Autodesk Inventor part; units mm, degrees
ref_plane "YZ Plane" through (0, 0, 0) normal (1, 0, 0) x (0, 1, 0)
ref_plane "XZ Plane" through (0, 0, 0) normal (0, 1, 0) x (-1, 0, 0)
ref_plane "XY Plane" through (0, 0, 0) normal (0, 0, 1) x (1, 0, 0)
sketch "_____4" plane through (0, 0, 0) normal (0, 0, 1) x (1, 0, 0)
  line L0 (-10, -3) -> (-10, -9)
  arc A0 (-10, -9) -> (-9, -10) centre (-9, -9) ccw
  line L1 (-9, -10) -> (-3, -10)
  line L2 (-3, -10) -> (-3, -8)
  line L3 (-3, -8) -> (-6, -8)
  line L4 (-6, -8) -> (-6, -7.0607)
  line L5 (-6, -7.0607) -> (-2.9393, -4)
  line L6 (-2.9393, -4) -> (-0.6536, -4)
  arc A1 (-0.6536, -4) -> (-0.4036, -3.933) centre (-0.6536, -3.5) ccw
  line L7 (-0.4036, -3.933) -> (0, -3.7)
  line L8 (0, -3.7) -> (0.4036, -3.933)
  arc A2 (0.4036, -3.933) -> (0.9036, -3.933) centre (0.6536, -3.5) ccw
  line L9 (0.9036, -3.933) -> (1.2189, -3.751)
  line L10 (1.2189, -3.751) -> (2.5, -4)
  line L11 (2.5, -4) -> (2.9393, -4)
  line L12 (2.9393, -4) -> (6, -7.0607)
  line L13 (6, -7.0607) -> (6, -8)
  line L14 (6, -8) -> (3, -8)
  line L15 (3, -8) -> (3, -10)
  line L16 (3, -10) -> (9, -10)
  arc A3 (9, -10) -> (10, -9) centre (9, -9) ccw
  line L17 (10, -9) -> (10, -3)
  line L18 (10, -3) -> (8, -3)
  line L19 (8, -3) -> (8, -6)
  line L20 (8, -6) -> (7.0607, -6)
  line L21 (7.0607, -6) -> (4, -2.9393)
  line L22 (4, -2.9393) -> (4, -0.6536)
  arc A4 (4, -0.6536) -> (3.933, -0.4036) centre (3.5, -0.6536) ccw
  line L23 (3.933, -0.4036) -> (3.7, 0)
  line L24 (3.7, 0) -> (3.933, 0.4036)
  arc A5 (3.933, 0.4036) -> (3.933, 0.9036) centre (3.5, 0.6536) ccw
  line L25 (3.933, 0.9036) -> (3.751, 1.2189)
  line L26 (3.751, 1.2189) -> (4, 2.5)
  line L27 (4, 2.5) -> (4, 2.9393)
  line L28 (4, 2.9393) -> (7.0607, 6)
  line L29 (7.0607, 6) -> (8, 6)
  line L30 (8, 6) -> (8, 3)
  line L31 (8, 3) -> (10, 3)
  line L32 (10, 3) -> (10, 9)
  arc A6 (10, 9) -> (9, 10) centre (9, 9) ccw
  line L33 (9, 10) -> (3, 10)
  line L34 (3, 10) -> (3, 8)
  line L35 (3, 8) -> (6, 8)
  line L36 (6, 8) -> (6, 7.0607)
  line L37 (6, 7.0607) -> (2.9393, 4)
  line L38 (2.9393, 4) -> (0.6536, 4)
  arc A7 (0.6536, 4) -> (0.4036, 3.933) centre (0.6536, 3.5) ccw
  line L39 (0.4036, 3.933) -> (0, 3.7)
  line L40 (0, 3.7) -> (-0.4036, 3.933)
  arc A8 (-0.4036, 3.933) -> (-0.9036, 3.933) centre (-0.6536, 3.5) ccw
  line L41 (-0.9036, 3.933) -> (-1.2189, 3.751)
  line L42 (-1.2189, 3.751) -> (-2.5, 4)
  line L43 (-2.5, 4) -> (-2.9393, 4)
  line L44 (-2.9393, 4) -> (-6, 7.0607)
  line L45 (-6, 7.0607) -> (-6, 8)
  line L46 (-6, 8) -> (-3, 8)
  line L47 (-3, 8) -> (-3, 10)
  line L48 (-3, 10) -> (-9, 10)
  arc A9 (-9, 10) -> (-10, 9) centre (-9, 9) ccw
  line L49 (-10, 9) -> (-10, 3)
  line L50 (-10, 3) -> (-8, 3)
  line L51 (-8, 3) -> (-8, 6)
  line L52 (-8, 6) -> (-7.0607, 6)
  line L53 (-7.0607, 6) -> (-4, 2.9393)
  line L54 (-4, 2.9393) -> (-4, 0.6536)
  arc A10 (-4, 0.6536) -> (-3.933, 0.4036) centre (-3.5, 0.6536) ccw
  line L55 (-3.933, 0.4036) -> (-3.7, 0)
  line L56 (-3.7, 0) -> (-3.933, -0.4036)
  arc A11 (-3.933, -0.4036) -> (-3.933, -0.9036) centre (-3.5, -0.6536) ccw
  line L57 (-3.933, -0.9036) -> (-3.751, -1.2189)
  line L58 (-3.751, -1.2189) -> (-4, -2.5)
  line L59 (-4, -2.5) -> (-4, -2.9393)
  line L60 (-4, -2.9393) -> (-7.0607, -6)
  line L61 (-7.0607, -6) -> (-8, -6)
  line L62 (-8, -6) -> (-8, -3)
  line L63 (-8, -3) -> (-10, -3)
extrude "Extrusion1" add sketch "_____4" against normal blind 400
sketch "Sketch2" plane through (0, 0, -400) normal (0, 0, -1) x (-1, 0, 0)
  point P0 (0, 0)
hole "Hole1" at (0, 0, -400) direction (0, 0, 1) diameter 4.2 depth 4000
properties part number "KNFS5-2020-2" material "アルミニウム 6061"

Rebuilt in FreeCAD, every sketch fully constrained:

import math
import FreeCAD as App
import Part
import Sketcher
Q = App.Units.Quantity

doc = App.newDocument("Part")
body = doc.addObject("PartDesign::Body", "Body")

# Sketch on XY plane
sketch1 = body.newObject("Sketcher::SketchObject", "Sketch")
sketch1.AttachmentSupport = (doc.getObject("XY_Plane"), [""])
sketch1.MapMode = "FlatFace"
sketch1.addGeometry([
    Part.LineSegment(App.Vector(-8, -3, 0), App.Vector(-10, -3, 0)),  # 0
    Part.LineSegment(App.Vector(-10, -3, 0), App.Vector(-10, -9, 0)),  # 1
    Part.ArcOfCircle(Part.Circle(App.Vector(-9, -9, 0), App.Vector(0, 0, 1), 1), math.radians(180), math.radians(270)),  # 2
    Part.LineSegment(App.Vector(-9, -10, 0), App.Vector(-3, -10, 0)),  # 3
    Part.LineSegment(App.Vector(-3, -10, 0), App.Vector(-3, -8, 0)),  # 4
    Part.LineSegment(App.Vector(-3, -8, 0), App.Vector(-6, -8, 0)),  # 5
    Part.LineSegment(App.Vector(-6, -8, 0), App.Vector(-6, -7.06, 0)),  # 6
    Part.LineSegment(App.Vector(-6, -7.06, 0), App.Vector(-2.94, -4, 0)),  # 7
    Part.LineSegment(App.Vector(-2.94, -4, 0), App.Vector(-0.65, -4, 0)),  # 8
    Part.ArcOfCircle(Part.Circle(App.Vector(-0.65, -3.5, 0), App.Vector(0, 0, 1), 0.5), math.radians(-90), math.radians(-60)),  # 9
    Part.LineSegment(App.Vector(-0.4, -3.93, 0), App.Vector(0, -3.7, 0)),  # 10
    Part.LineSegment(App.Vector(0, -3.7, 0), App.Vector(0.4, -3.93, 0)),  # 11
    Part.ArcOfCircle(Part.Circle(App.Vector(0.65, -3.5, 0), App.Vector(0, 0, 1), 0.5), math.radians(-120), math.radians(-60)),  # 12
    Part.LineSegment(App.Vector(0.9, -3.93, 0), App.Vector(1.22, -3.75, 0)),  # 13
    Part.LineSegment(App.Vector(1.22, -3.75, 0), App.Vector(2.5, -4, 0)),  # 14
    Part.LineSegment(App.Vector(2.5, -4, 0), App.Vector(2.94, -4, 0)),  # 15
    Part.LineSegment(App.Vector(2.94, -4, 0), App.Vector(6, -7.06, 0)),  # 16
    Part.LineSegment(App.Vector(6, -7.06, 0), App.Vector(6, -8, 0)),  # 17
    Part.LineSegment(App.Vector(6, -8, 0), App.Vector(3, -8, 0)),  # 18
    Part.LineSegment(App.Vector(3, -8, 0), App.Vector(3, -10, 0)),  # 19
    Part.LineSegment(App.Vector(3, -10, 0), App.Vector(9, -10, 0)),  # 20
    Part.ArcOfCircle(Part.Circle(App.Vector(9, -9, 0), App.Vector(0, 0, 1), 1), math.radians(-90), math.radians(0)),  # 21
    Part.LineSegment(App.Vector(10, -9, 0), App.Vector(10, -3, 0)),  # 22
    Part.LineSegment(App.Vector(10, -3, 0), App.Vector(8, -3, 0)),  # 23
    Part.LineSegment(App.Vector(8, -3, 0), App.Vector(8, -6, 0)),  # 24
    Part.LineSegment(App.Vector(8, -6, 0), App.Vector(7.06, -6, 0)),  # 25
    Part.LineSegment(App.Vector(7.06, -6, 0), App.Vector(4, -2.94, 0)),  # 26
    Part.LineSegment(App.Vector(4, -2.94, 0), App.Vector(4, -0.65, 0)),  # 27
    Part.ArcOfCircle(Part.Circle(App.Vector(3.5, -0.65, 0), App.Vector(0, 0, 1), 0.5), math.radians(0), math.radians(30)),  # 28
    Part.LineSegment(App.Vector(3.93, -0.4, 0), App.Vector(3.7, 0, 0)),  # 29
    Part.LineSegment(App.Vector(3.7, 0, 0), App.Vector(3.93, 0.4, 0)),  # 30
    Part.ArcOfCircle(Part.Circle(App.Vector(3.5, 0.65, 0), App.Vector(0, 0, 1), 0.5), math.radians(-30), math.radians(30)),  # 31
    Part.LineSegment(App.Vector(3.93, 0.9, 0), App.Vector(3.75, 1.22, 0)),  # 32
    Part.LineSegment(App.Vector(3.75, 1.22, 0), App.Vector(4, 2.5, 0)),  # 33
    Part.LineSegment(App.Vector(4, 2.5, 0), App.Vector(4, 2.94, 0)),  # 34
    Part.LineSegment(App.Vector(4, 2.94, 0), App.Vector(7.06, 6, 0)),  # 35
    Part.LineSegment(App.Vector(7.06, 6, 0), App.Vector(8, 6, 0)),  # 36
    Part.LineSegment(App.Vector(8, 6, 0), App.Vector(8, 3, 0)),  # 37
    Part.LineSegment(App.Vector(8, 3, 0), App.Vector(10, 3, 0)),  # 38
    Part.LineSegment(App.Vector(10, 3, 0), App.Vector(10, 9, 0)),  # 39
    Part.ArcOfCircle(Part.Circle(App.Vector(9, 9, 0), App.Vector(0, 0, 1), 1), math.radians(0), math.radians(90)),  # 40
    Part.LineSegment(App.Vector(9, 10, 0), App.Vector(3, 10, 0)),  # 41
    Part.LineSegment(App.Vector(3, 10, 0), App.Vector(3, 8, 0)),  # 42
    Part.LineSegment(App.Vector(3, 8, 0), App.Vector(6, 8, 0)),  # 43
    Part.LineSegment(App.Vector(6, 8, 0), App.Vector(6, 7.06, 0)),  # 44
    Part.LineSegment(App.Vector(6, 7.06, 0), App.Vector(2.94, 4, 0)),  # 45
    Part.LineSegment(App.Vector(2.94, 4, 0), App.Vector(0.65, 4, 0)),  # 46
    Part.ArcOfCircle(Part.Circle(App.Vector(0.65, 3.5, 0), App.Vector(0, 0, 1), 0.5), math.radians(90), math.radians(120)),  # 47
    Part.LineSegment(App.Vector(0.4, 3.93, 0), App.Vector(0, 3.7, 0)),  # 48
    Part.LineSegment(App.Vector(0, 3.7, 0), App.Vector(-0.4, 3.93, 0)),  # 49
    Part.ArcOfCircle(Part.Circle(App.Vector(-0.65, 3.5, 0), App.Vector(0, 0, 1), 0.5), math.radians(60), math.radians(120)),  # 50
    Part.LineSegment(App.Vector(-0.9, 3.93, 0), App.Vector(-1.22, 3.75, 0)),  # 51
    Part.LineSegment(App.Vector(-1.22, 3.75, 0), App.Vector(-2.5, 4, 0)),  # 52
    Part.LineSegment(App.Vector(-2.5, 4, 0), App.Vector(-2.94, 4, 0)),  # 53
    Part.LineSegment(App.Vector(-2.94, 4, 0), App.Vector(-6, 7.06, 0)),  # 54
    Part.LineSegment(App.Vector(-6, 7.06, 0), App.Vector(-6, 8, 0)),  # 55
    Part.LineSegment(App.Vector(-6, 8, 0), App.Vector(-3, 8, 0)),  # 56
    Part.LineSegment(App.Vector(-3, 8, 0), App.Vector(-3, 10, 0)),  # 57
    Part.LineSegment(App.Vector(-3, 10, 0), App.Vector(-9, 10, 0)),  # 58
    Part.ArcOfCircle(Part.Circle(App.Vector(-9, 9, 0), App.Vector(0, 0, 1), 1), math.radians(90), math.radians(180)),  # 59
    Part.LineSegment(App.Vector(-10, 9, 0), App.Vector(-10, 3, 0)),  # 60
    Part.LineSegment(App.Vector(-10, 3, 0), App.Vector(-8, 3, 0)),  # 61
    Part.LineSegment(App.Vector(-8, 3, 0), App.Vector(-8, 6, 0)),  # 62
    Part.LineSegment(App.Vector(-8, 6, 0), App.Vector(-7.06, 6, 0)),  # 63
    Part.LineSegment(App.Vector(-7.06, 6, 0), App.Vector(-4, 2.94, 0)),  # 64
    Part.LineSegment(App.Vector(-4, 2.94, 0), App.Vector(-4, 0.65, 0)),  # 65
    Part.ArcOfCircle(Part.Circle(App.Vector(-3.5, 0.65, 0), App.Vector(0, 0, 1), 0.5), math.radians(180), math.radians(210)),  # 66
    Part.LineSegment(App.Vector(-3.93, 0.4, 0), App.Vector(-3.7, 0, 0)),  # 67
    Part.LineSegment(App.Vector(-3.7, 0, 0), App.Vector(-3.93, -0.4, 0)),  # 68
    Part.ArcOfCircle(Part.Circle(App.Vector(-3.5, -0.65, 0), App.Vector(0, 0, 1), 0.5), math.radians(150), math.radians(210)),  # 69
    Part.LineSegment(App.Vector(-3.93, -0.9, 0), App.Vector(-3.75, -1.22, 0)),  # 70
    Part.LineSegment(App.Vector(-3.75, -1.22, 0), App.Vector(-4, -2.5, 0)),  # 71
    Part.LineSegment(App.Vector(-4, -2.5, 0), App.Vector(-4, -2.94, 0)),  # 72
    Part.LineSegment(App.Vector(-4, -2.94, 0), App.Vector(-7.06, -6, 0)),  # 73
    Part.LineSegment(App.Vector(-7.06, -6, 0), App.Vector(-8, -6, 0)),  # 74
    Part.LineSegment(App.Vector(-8, -6, 0), App.Vector(-8, -3, 0)),  # 75
], False)
sketch1.addConstraint([
    Sketcher.Constraint("Coincident", 0, 2, 1, 1),
    Sketcher.Constraint("Tangent", 1, 2, 2, 1),
    Sketcher.Constraint("Tangent", 2, 2, 3, 1),
    Sketcher.Constraint("Coincident", 3, 2, 4, 1),
    Sketcher.Constraint("Coincident", 4, 2, 5, 1),
    Sketcher.Constraint("Coincident", 5, 2, 6, 1),
    Sketcher.Constraint("Coincident", 6, 2, 7, 1),
    Sketcher.Constraint("Coincident", 7, 2, 8, 1),
    Sketcher.Constraint("Tangent", 8, 2, 9, 1),
    Sketcher.Constraint("Tangent", 9, 2, 10, 1),
    Sketcher.Constraint("Coincident", 10, 2, 11, 1),
    Sketcher.Constraint("Tangent", 11, 2, 12, 1),
    Sketcher.Constraint("Tangent", 12, 2, 13, 1),
    Sketcher.Constraint("Coincident", 13, 2, 14, 1),
    Sketcher.Constraint("Coincident", 14, 2, 15, 1),
    Sketcher.Constraint("Coincident", 15, 2, 16, 1),
    Sketcher.Constraint("Coincident", 16, 2, 17, 1),
    Sketcher.Constraint("Coincident", 17, 2, 18, 1),
    Sketcher.Constraint("Coincident", 18, 2, 19, 1),
    Sketcher.Constraint("Coincident", 19, 2, 20, 1),
    Sketcher.Constraint("Tangent", 20, 2, 21, 1),
    Sketcher.Constraint("Tangent", 21, 2, 22, 1),
    Sketcher.Constraint("Coincident", 22, 2, 23, 1),
    Sketcher.Constraint("Coincident", 23, 2, 24, 1),
    Sketcher.Constraint("Coincident", 24, 2, 25, 1),
    Sketcher.Constraint("Coincident", 25, 2, 26, 1),
    Sketcher.Constraint("Coincident", 26, 2, 27, 1),
    Sketcher.Constraint("Tangent", 27, 2, 28, 1),
    Sketcher.Constraint("Tangent", 28, 2, 29, 1),
    Sketcher.Constraint("Coincident", 29, 2, 30, 1),
    Sketcher.Constraint("Tangent", 30, 2, 31, 1),
    Sketcher.Constraint("Tangent", 31, 2, 32, 1),
    Sketcher.Constraint("Coincident", 32, 2, 33, 1),
    Sketcher.Constraint("Coincident", 33, 2, 34, 1),
    Sketcher.Constraint("Coincident", 34, 2, 35, 1),
    Sketcher.Constraint("Coincident", 35, 2, 36, 1),
    Sketcher.Constraint("Coincident", 36, 2, 37, 1),
    Sketcher.Constraint("Coincident", 37, 2, 38, 1),
    Sketcher.Constraint("Coincident", 38, 2, 39, 1),
    Sketcher.Constraint("Tangent", 39, 2, 40, 1),
    Sketcher.Constraint("Tangent", 40, 2, 41, 1),
    Sketcher.Constraint("Coincident", 41, 2, 42, 1),
    Sketcher.Constraint("Coincident", 42, 2, 43, 1),
    Sketcher.Constraint("Coincident", 43, 2, 44, 1),
    Sketcher.Constraint("Coincident", 44, 2, 45, 1),
    Sketcher.Constraint("Coincident", 45, 2, 46, 1),
    Sketcher.Constraint("Tangent", 46, 2, 47, 1),
    Sketcher.Constraint("Tangent", 47, 2, 48, 1),
    Sketcher.Constraint("Coincident", 48, 2, 49, 1),
    Sketcher.Constraint("Tangent", 49, 2, 50, 1),
    Sketcher.Constraint("Tangent", 50, 2, 51, 1),
    Sketcher.Constraint("Coincident", 51, 2, 52, 1),
    Sketcher.Constraint("Coincident", 52, 2, 53, 1),
    Sketcher.Constraint("Coincident", 53, 2, 54, 1),
    Sketcher.Constraint("Coincident", 54, 2, 55, 1),
    Sketcher.Constraint("Coincident", 55, 2, 56, 1),
    Sketcher.Constraint("Coincident", 56, 2, 57, 1),
    Sketcher.Constraint("Coincident", 57, 2, 58, 1),
    Sketcher.Constraint("Tangent", 58, 2, 59, 1),
    Sketcher.Constraint("Tangent", 59, 2, 60, 1),
    Sketcher.Constraint("Coincident", 60, 2, 61, 1),
    Sketcher.Constraint("Coincident", 61, 2, 62, 1),
    Sketcher.Constraint("Coincident", 62, 2, 63, 1),
    Sketcher.Constraint("Coincident", 63, 2, 64, 1),
    Sketcher.Constraint("Coincident", 64, 2, 65, 1),
    Sketcher.Constraint("Tangent", 65, 2, 66, 1),
    Sketcher.Constraint("Tangent", 66, 2, 67, 1),
    Sketcher.Constraint("Coincident", 67, 2, 68, 1),
    Sketcher.Constraint("Tangent", 68, 2, 69, 1),
    Sketcher.Constraint("Tangent", 69, 2, 70, 1),
    Sketcher.Constraint("Coincident", 70, 2, 71, 1),
    Sketcher.Constraint("Coincident", 71, 2, 72, 1),
    Sketcher.Constraint("Coincident", 72, 2, 73, 1),
    Sketcher.Constraint("Coincident", 73, 2, 74, 1),
    Sketcher.Constraint("Coincident", 74, 2, 75, 1),
    Sketcher.Constraint("Coincident", 75, 2, 0, 1),
    Sketcher.Constraint("Horizontal", 0),
    Sketcher.Constraint("Vertical", 1),
    Sketcher.Constraint("Horizontal", 3),
    Sketcher.Constraint("Vertical", 4),
    Sketcher.Constraint("Horizontal", 5),
    Sketcher.Constraint("Vertical", 6),
    Sketcher.Constraint("Horizontal", 8),
    Sketcher.Constraint("Horizontal", 15),
    Sketcher.Constraint("Vertical", 17),
    Sketcher.Constraint("Horizontal", 18),
    Sketcher.Constraint("Vertical", 19),
    Sketcher.Constraint("Horizontal", 20),
    Sketcher.Constraint("Vertical", 22),
    Sketcher.Constraint("Horizontal", 23),
    Sketcher.Constraint("Vertical", 24),
    Sketcher.Constraint("Horizontal", 25),
    Sketcher.Constraint("Vertical", 27),
    Sketcher.Constraint("Vertical", 34),
    Sketcher.Constraint("Horizontal", 36),
    Sketcher.Constraint("Vertical", 37),
    Sketcher.Constraint("Horizontal", 38),
    Sketcher.Constraint("Vertical", 39),
    Sketcher.Constraint("Horizontal", 41),
    Sketcher.Constraint("Vertical", 42),
    Sketcher.Constraint("Horizontal", 43),
    Sketcher.Constraint("Vertical", 44),
    Sketcher.Constraint("Horizontal", 46),
    Sketcher.Constraint("Horizontal", 53),
    Sketcher.Constraint("Vertical", 55),
    Sketcher.Constraint("Horizontal", 56),
    Sketcher.Constraint("Vertical", 57),
    Sketcher.Constraint("Horizontal", 58),
    Sketcher.Constraint("Vertical", 60),
    Sketcher.Constraint("Horizontal", 61),
    Sketcher.Constraint("Vertical", 62),
    Sketcher.Constraint("Horizontal", 63),
    Sketcher.Constraint("Vertical", 65),
    Sketcher.Constraint("Vertical", 72),
    Sketcher.Constraint("Horizontal", 74),
    Sketcher.Constraint("Vertical", 75),
    Sketcher.Constraint("Equal", 9, 12),
    Sketcher.Constraint("Equal", 2, 21),
    Sketcher.Constraint("Equal", 12, 28),
    Sketcher.Constraint("Equal", 28, 31),
    Sketcher.Constraint("Equal", 21, 40),
    Sketcher.Constraint("Equal", 31, 47),
    Sketcher.Constraint("Equal", 47, 50),
    Sketcher.Constraint("Equal", 40, 59),
    Sketcher.Constraint("Equal", 50, 66),
    Sketcher.Constraint("Equal", 66, 69),
    Sketcher.Constraint("Symmetric", 2, 3, 40, 3, -1, 1),
    Sketcher.Constraint("Symmetric", 9, 3, 47, 3, -1, 1),
    Sketcher.Constraint("Symmetric", 12, 3, 50, 3, -1, 1),
    Sketcher.Constraint("Symmetric", 21, 3, 59, 3, -1, 1),
    Sketcher.Constraint("Symmetric", 28, 3, 66, 3, -1, 1),
    Sketcher.Constraint("Symmetric", 31, 3, 69, 3, -1, 1),
    Sketcher.Constraint("Symmetric", 4, 2, 42, 2, -1, 1),
    Sketcher.Constraint("Symmetric", 6, 2, 44, 2, -1, 1),
    Sketcher.Constraint("Symmetric", 10, 2, 48, 2, -1, 1),
    Sketcher.Constraint("Symmetric", 13, 2, 51, 2, -1, 1),
    Sketcher.Constraint("Symmetric", 14, 2, 52, 2, -1, 1),
    Sketcher.Constraint("Symmetric", 16, 2, 54, 2, -1, 1),
    Sketcher.Constraint("Symmetric", 18, 2, 56, 2, -1, 1),
    Sketcher.Constraint("Symmetric", 23, 2, 61, 2, -1, 1),
    Sketcher.Constraint("Symmetric", 25, 2, 63, 2, -1, 1),
    Sketcher.Constraint("Symmetric", 29, 2, 67, 2, -1, 1),
    Sketcher.Constraint("Symmetric", 32, 2, 70, 2, -1, 1),
    Sketcher.Constraint("Symmetric", 33, 2, 71, 2, -1, 1),
    Sketcher.Constraint("Symmetric", 35, 2, 73, 2, -1, 1),
    Sketcher.Constraint("Symmetric", 37, 2, 75, 2, -1, 1),
    Sketcher.Constraint("Symmetric", 9, 3, 12, 3, -2),
    Sketcher.Constraint("Symmetric", 2, 3, 21, 3, -2),
    Sketcher.Constraint("Symmetric", 31, 3, 66, 3, -2),
    Sketcher.Constraint("Symmetric", 7, 2, 15, 2, -2),
    Sketcher.Constraint("Symmetric", 6, 2, 16, 2, -2),
    Sketcher.Constraint("Symmetric", 4, 2, 18, 2, -2),
    Sketcher.Constraint("Symmetric", 37, 2, 61, 2, -2),
    Sketcher.Constraint("Symmetric", 35, 2, 63, 2, -2),
    Sketcher.Constraint("Symmetric", 34, 2, 64, 2, -2),
    Sketcher.Constraint("PointOnObject", 10, 2, -2),
    Sketcher.Constraint("PointOnObject", 29, 2, -1),
    Sketcher.Constraint("Parallel", 10, 13),
    Sketcher.Constraint("Perpendicular", 7, 16),
    Sketcher.Constraint("Parallel", 16, 26),
    Sketcher.Constraint("Perpendicular", 13, 29),
    Sketcher.Constraint("Parallel", 29, 32),
    Sketcher.Constraint("Perpendicular", 14, 33),
    Sketcher.Constraint("Perpendicular", 26, 35),
    Sketcher.Constraint("Parallel", 35, 45),
    Sketcher.Constraint("Perpendicular", 45, 54),
    Sketcher.Constraint("Perpendicular", 64, 73),
    Sketcher.Constraint("Equal", 58, 1),
    Sketcher.Constraint("Equal", 61, 4),
    Sketcher.Constraint("Equal", 74, 6),
    Sketcher.Constraint("Equal", 56, 24),
    Sketcher.Constraint("Equal", 46, 27),
    Sketcher.Constraint("Equal", 53, 34),
    Sketcher.Constraint("Equal", 16, 26),
    Sketcher.Constraint("Equal", 11, 29),
    Sketcher.Constraint("Radius", 2, 1.0),
    Sketcher.Constraint("Radius", 9, 0.5),
    Sketcher.Constraint("DistanceX", 0, 2, 0, 1, 2.0),
    Sketcher.Constraint("DistanceX", 3, 1, 3, 2, 6.0),
    Sketcher.Constraint("DistanceX", 5, 2, 5, 1, 3.0),
    Sketcher.Constraint("Angle", 14, Q("-10.999 deg")),
    Sketcher.Constraint("DistanceX", 2, 3, -1, 1, 9.0),
    Sketcher.Constraint("DistanceY", 7, 2, -1, 1, 4.0),
    Sketcher.Constraint("DistanceY", 10, 2, -1, 1, 3.7),
    Sketcher.Constraint("DistanceX", -1, 1, 14, 2, 2.5),
    Sketcher.Constraint("Distance", 10, 0.466),
    Sketcher.Constraint("DistanceX", 8, 1, 8, 2, 2.2857),
])
pad1 = body.newObject("PartDesign::Pad", "Pad")
pad1.Profile = sketch1
pad1.Length = 400
pad1.Reversed = True

# Sketch on XY plane
sketch2 = body.newObject("Sketcher::SketchObject", "Sketch001")
sketch2.AttachmentSupport = (doc.getObject("XY_Plane"), [""])
sketch2.MapMode = "FlatFace"
sketch2.AttachmentOffset = App.Placement(App.Vector(0, 0, -400), App.Rotation())
sketch2.addGeometry(Part.Circle(App.Vector(0, 0, 0), App.Vector(0, 0, 1), 2.1), False)
sketch2.addConstraint([
    Sketcher.Constraint("Coincident", 0, 3, -1, 1),
    Sketcher.Constraint("Diameter", 0, 4.2),
])
doc.recompute()
hole = body.newObject("PartDesign::Hole", "Hole")
hole.Profile = sketch2
hole.ThreadType = "None"
hole.Diameter = 4.2
hole.DepthType = "Dimension"
hole.Depth = 4000
hole.DrillPoint = "Flat"
hole.Reversed = True

doc.recompute()
